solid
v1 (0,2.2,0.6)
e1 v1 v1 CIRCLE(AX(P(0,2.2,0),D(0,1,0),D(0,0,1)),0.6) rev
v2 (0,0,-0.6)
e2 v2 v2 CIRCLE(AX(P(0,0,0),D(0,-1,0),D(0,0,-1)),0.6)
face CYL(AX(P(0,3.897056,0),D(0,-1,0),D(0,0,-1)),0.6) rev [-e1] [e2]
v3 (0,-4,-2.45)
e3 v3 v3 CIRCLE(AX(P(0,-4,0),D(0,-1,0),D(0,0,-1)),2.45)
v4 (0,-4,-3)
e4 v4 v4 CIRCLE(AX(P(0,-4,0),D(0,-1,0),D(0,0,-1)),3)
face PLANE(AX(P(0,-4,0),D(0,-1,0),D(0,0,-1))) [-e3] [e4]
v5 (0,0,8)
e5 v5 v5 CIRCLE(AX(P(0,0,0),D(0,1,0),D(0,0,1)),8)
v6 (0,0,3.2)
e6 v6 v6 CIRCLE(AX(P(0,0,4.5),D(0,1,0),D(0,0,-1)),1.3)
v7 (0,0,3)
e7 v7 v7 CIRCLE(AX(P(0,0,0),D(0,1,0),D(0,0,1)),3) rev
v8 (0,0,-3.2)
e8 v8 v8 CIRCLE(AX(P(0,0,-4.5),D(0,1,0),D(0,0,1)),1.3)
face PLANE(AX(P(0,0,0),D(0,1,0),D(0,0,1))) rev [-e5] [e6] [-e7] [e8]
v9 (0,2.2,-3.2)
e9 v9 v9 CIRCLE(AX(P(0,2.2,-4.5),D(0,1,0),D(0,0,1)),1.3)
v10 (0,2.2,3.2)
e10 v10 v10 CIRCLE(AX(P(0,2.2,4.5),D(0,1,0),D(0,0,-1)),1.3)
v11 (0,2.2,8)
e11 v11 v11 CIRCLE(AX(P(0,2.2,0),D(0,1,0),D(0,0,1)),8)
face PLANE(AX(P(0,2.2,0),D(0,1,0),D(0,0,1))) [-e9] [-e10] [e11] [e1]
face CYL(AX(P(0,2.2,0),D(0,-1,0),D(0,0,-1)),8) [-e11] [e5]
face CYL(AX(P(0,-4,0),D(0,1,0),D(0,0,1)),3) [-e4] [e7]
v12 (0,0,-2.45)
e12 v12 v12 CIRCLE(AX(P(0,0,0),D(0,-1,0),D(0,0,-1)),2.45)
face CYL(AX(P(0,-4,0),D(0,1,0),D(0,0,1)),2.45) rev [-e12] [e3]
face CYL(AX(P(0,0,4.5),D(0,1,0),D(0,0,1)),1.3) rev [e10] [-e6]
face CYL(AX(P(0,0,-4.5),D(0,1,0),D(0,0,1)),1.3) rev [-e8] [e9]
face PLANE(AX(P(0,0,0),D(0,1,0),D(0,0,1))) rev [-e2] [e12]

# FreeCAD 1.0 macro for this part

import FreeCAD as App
import Part
import Sketcher

doc = App.newDocument("Part")
body = doc.addObject("PartDesign::Body", "Body")

sketch1 = body.newObject("Sketcher::SketchObject", "Sketch")
sketch1.AttachmentSupport = (doc.getObject("XZ_Plane"), [""])
sketch1.MapMode = "FlatFace"
sketch1.addGeometry(Part.Circle(App.Vector(0, 0, 0), App.Vector(0, 0, 1), 8), False)
sketch1.addConstraint(Sketcher.Constraint("Coincident", 0, 3, -1, 1))
sketch1.addConstraint(Sketcher.Constraint("Diameter", 0, 16.0))
pad1 = body.newObject("PartDesign::Pad", "Pad")
pad1.Profile = sketch1
pad1.Length = 2.2
pad1.Reversed = True

sketch2 = body.newObject("Sketcher::SketchObject", "Sketch001")
sketch2.AttachmentSupport = (doc.getObject("XZ_Plane"), [""])
sketch2.MapMode = "FlatFace"
sketch2.AttachmentOffset = App.Placement(App.Vector(0, 0, -2.2), App.Rotation())
sketch2.addGeometry(Part.Circle(App.Vector(0, -4.5, 0), App.Vector(0, 0, 1), 1.3), False)
sketch2.addGeometry(Part.Circle(App.Vector(0, 4.5, 0), App.Vector(0, 0, 1), 1.3), False)
sketch2.addConstraint(Sketcher.Constraint("Equal", 0, 1))
sketch2.addConstraint(Sketcher.Constraint("Symmetric", 0, 3, 1, 3, -1, 1))
sketch2.addConstraint(Sketcher.Constraint("PointOnObject", 0, 3, -2))
sketch2.addConstraint(Sketcher.Constraint("Diameter", 0, 2.6))
sketch2.addConstraint(Sketcher.Constraint("DistanceY", 0, 3, 1, 3, 9.0))
pocket1 = body.newObject("PartDesign::Pocket", "Pocket")
pocket1.Profile = sketch2
pocket1.Length = 2.2
pocket1.Reversed = True

sketch3 = body.newObject("Sketcher::SketchObject", "Sketch002")
sketch3.AttachmentSupport = (doc.getObject("XZ_Plane"), [""])
sketch3.MapMode = "FlatFace"
sketch3.addGeometry(Part.Circle(App.Vector(0, 0, 0), App.Vector(0, 0, 1), 3), False)
sketch3.addGeometry(Part.Circle(App.Vector(0, 0, 0), App.Vector(0, 0, 1), 2.5), False)
sketch3.addConstraint(Sketcher.Constraint("Coincident", 0, 3, -1, 1))
sketch3.addConstraint(Sketcher.Constraint("Coincident", 1, 3, -1, 1))
sketch3.addConstraint(Sketcher.Constraint("Diameter", 0, 6.0))
sketch3.addConstraint(Sketcher.Constraint("Diameter", 1, 4.9))
pad2 = body.newObject("PartDesign::Pad", "Pad001")
pad2.Profile = sketch3
pad2.Length = 4

sketch4 = body.newObject("Sketcher::SketchObject", "Sketch003")
sketch4.AttachmentSupport = (doc.getObject("XZ_Plane"), [""])
sketch4.MapMode = "FlatFace"
sketch4.addGeometry(Part.Circle(App.Vector(0, 0, 0), App.Vector(0, 0, 1), 0.6), False)
sketch4.addConstraint(Sketcher.Constraint("Coincident", 0, 3, -1, 1))
sketch4.addConstraint(Sketcher.Constraint("Diameter", 0, 1.2))
pocket2 = body.newObject("PartDesign::Pocket", "Pocket001")
pocket2.Profile = sketch4
pocket2.Length = 2.2

doc.recompute()
